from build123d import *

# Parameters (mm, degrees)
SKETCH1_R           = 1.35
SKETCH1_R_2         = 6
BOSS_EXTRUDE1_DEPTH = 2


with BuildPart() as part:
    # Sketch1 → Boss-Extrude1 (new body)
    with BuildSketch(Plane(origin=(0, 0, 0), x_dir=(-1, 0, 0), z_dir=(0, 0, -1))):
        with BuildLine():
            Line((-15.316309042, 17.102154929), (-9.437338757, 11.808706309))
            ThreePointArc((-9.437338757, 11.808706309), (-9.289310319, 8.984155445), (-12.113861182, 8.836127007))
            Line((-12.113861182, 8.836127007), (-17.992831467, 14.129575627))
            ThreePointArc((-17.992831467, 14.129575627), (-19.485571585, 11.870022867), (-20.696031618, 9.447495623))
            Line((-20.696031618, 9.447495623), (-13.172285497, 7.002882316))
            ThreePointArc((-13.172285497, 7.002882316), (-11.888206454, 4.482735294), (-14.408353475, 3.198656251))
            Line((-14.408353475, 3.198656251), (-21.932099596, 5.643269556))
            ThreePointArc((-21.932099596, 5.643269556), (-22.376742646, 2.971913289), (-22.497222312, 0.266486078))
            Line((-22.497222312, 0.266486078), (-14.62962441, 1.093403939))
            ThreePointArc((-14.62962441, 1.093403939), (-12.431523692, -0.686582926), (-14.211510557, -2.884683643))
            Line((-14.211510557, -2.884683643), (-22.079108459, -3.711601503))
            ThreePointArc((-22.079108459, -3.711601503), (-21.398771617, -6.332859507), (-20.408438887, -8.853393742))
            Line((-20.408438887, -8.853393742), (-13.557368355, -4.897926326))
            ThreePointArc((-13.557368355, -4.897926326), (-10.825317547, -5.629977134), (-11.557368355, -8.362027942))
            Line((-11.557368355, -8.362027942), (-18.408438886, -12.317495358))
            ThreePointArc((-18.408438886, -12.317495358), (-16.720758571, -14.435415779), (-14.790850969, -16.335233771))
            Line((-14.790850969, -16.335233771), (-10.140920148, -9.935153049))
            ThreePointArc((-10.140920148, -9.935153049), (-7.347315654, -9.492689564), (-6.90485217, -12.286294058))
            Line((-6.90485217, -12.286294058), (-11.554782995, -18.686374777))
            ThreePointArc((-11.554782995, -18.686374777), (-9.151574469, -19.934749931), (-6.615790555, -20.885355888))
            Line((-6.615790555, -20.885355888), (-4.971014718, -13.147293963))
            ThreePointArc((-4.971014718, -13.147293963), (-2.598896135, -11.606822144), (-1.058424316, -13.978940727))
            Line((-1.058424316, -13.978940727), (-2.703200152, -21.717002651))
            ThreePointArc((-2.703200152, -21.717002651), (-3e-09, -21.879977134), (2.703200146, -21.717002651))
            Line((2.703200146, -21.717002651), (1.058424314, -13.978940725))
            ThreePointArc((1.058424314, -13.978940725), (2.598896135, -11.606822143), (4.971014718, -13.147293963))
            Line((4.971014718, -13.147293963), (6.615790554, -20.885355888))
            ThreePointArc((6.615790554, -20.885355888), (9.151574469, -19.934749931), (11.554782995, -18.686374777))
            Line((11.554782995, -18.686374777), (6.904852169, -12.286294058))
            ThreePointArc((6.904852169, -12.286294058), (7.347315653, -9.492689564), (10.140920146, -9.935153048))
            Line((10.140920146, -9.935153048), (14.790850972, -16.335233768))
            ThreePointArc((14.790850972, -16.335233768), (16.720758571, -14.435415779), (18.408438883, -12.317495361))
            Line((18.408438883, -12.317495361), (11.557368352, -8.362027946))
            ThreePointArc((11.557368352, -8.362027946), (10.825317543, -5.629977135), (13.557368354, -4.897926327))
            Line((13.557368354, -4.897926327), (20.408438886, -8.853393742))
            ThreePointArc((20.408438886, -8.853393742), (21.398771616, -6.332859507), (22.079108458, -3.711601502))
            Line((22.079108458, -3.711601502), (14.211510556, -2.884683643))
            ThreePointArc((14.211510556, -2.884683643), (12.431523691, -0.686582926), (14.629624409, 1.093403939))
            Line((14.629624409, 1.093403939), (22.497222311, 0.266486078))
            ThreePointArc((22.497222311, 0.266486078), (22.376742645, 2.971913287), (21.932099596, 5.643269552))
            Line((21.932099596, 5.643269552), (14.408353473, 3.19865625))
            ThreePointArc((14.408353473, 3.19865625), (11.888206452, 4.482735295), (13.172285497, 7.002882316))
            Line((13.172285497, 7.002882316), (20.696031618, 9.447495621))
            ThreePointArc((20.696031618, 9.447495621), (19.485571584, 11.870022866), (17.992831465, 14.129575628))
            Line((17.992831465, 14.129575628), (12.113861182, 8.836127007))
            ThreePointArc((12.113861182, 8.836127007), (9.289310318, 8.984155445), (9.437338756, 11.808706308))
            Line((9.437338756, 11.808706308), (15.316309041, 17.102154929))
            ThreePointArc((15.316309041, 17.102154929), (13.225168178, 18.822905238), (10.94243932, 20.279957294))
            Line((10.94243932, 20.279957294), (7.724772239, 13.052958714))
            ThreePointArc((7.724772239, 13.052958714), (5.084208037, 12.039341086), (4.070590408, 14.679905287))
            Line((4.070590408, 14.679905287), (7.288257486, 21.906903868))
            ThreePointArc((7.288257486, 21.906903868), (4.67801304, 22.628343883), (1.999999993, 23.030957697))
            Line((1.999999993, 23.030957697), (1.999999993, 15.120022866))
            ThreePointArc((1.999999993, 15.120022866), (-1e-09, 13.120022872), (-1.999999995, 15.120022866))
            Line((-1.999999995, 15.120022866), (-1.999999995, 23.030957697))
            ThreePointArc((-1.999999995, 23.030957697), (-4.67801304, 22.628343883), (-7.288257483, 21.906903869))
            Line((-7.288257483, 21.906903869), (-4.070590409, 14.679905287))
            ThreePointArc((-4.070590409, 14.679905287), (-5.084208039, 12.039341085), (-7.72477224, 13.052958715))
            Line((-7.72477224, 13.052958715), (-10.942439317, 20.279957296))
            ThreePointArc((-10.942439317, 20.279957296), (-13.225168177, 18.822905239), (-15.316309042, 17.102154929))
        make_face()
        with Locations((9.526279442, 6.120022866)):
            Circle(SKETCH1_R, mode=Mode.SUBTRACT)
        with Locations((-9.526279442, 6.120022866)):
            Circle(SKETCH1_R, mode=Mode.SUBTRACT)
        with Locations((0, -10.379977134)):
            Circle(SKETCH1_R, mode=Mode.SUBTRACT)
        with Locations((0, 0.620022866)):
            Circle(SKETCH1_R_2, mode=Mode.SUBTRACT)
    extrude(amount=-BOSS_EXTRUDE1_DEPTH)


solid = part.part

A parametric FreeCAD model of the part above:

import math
import FreeCAD as App
import Part
import Sketcher
Q = App.Units.Quantity

doc = App.newDocument("Part")
body = doc.addObject("PartDesign::Body", "Body")

sketch1 = body.newObject("Sketcher::SketchObject", "Sketch")
sketch1.AttachmentSupport = (doc.getObject("XY_Plane"), [""])
sketch1.MapMode = "FlatFace"
sketch1.addGeometry([
    Part.LineSegment(App.Vector(15.316309, 17.102155, 0), App.Vector(9.437339, 11.808706, 0)),
    Part.ArcOfCircle(Part.Circle(App.Vector(10.7756, 10.322417, 0), App.Vector(0, 0, 1), 2), math.radians(132), math.radians(312)),
    Part.LineSegment(App.Vector(12.113861, 8.836127, 0), App.Vector(17.992831, 14.129576, 0)),
    Part.ArcOfCircle(Part.Circle(App.Vector(0, 0.620023, 0), App.Vector(0, 0, 1), 22.5), math.radians(23.099689), math.radians(36.900311)),
    Part.LineSegment(App.Vector(20.696032, 9.447496, 0), App.Vector(13.172285, 7.002882, 0)),
    Part.ArcOfCircle(Part.Circle(App.Vector(13.790319, 5.100769, 0), App.Vector(0, 0, 1), 2), math.radians(108), math.radians(288)),
    Part.LineSegment(App.Vector(14.408353, 3.198656, 0), App.Vector(21.9321, 5.64327, 0)),
    Part.ArcOfCircle(Part.Circle(App.Vector(0, 0.620023, 0), App.Vector(0, 0, 1), 22.5), math.radians(-0.900311), math.radians(12.900311)),
    Part.LineSegment(App.Vector(22.497222, 0.266486, 0), App.Vector(14.629624, 1.093404, 0)),
    Part.ArcOfCircle(Part.Circle(App.Vector(14.420567, -0.89564, 0), App.Vector(0, 0, 1), 2), math.radians(84), math.radians(264)),
    Part.LineSegment(App.Vector(14.211511, -2.884684, 0), App.Vector(22.079108, -3.711602, 0)),
    Part.ArcOfCircle(Part.Circle(App.Vector(0, 0.620023, 0), App.Vector(0, 0, 1), 22.5), math.radians(-24.900311), math.radians(-11.099689)),
    Part.LineSegment(App.Vector(20.408439, -8.853394, 0), App.Vector(13.557368, -4.897926, 0)),
    Part.ArcOfCircle(Part.Circle(App.Vector(12.557368, -6.629977, 0), App.Vector(0, 0, 1), 2), math.radians(60), math.radians(240)),
    Part.LineSegment(App.Vector(11.557368, -8.362028, 0), App.Vector(18.408439, -12.317495, 0)),
    Part.ArcOfCircle(Part.Circle(App.Vector(0, 0.620023, 0), App.Vector(0, 0, 1), 22.5), math.radians(-48.900311), math.radians(-35.099689)),
    Part.LineSegment(App.Vector(14.790851, -16.335234, 0), App.Vector(10.14092, -9.935153, 0)),
    Part.ArcOfCircle(Part.Circle(App.Vector(8.522886, -11.110724, 0), App.Vector(0, 0, 1), 2), math.radians(36), math.radians(216)),
    Part.LineSegment(App.Vector(6.904852, -12.286294, 0), App.Vector(11.554783, -18.686375, 0)),
    Part.ArcOfCircle(Part.Circle(App.Vector(0, 0.620023, 0), App.Vector(0, 0, 1), 22.5), math.radians(-72.900311), math.radians(-59.099689)),
    Part.LineSegment(App.Vector(6.615791, -20.885356, 0), App.Vector(4.971015, -13.147294, 0)),
    Part.ArcOfCircle(Part.Circle(App.Vector(3.01472, -13.563117, 0), App.Vector(0, 0, 1), 2), math.radians(12), math.radians(192)),
    Part.LineSegment(App.Vector(1.058424, -13.978941, 0), App.Vector(2.7032, -21.717003, 0)),
    Part.ArcOfCircle(Part.Circle(App.Vector(0, 0.620023, 0), App.Vector(0, 0, 1), 22.5), math.radians(-96.900311), math.radians(-83.099689)),
    Part.LineSegment(App.Vector(-2.7032, -21.717003, 0), App.Vector(-1.058424, -13.978941, 0)),
    Part.ArcOfCircle(Part.Circle(App.Vector(-3.01472, -13.563117, 0), App.Vector(0, 0, 1), 2), math.radians(-12), math.radians(168)),
    Part.LineSegment(App.Vector(-4.971015, -13.147294, 0), App.Vector(-6.615791, -20.885356, 0)),
    Part.ArcOfCircle(Part.Circle(App.Vector(0, 0.620023, 0), App.Vector(0, 0, 1), 22.5), math.radians(-120.900311), math.radians(-107.099689)),
    Part.LineSegment(App.Vector(-11.554783, -18.686375, 0), App.Vector(-6.904852, -12.286294, 0)),
    Part.ArcOfCircle(Part.Circle(App.Vector(-8.522886, -11.110724, 0), App.Vector(0, 0, 1), 2), math.radians(-36), math.radians(144)),
    Part.LineSegment(App.Vector(-10.14092, -9.935153, 0), App.Vector(-14.790851, -16.335234, 0)),
    Part.ArcOfCircle(Part.Circle(App.Vector(0, 0.620023, 0), App.Vector(0, 0, 1), 22.5), math.radians(-144.900311), math.radians(-131.099689)),
    Part.LineSegment(App.Vector(-18.408439, -12.317495, 0), App.Vector(-11.557368, -8.362028, 0)),
    Part.ArcOfCircle(Part.Circle(App.Vector(-12.557368, -6.629977, 0), App.Vector(0, 0, 1), 2), math.radians(-60), math.radians(120)),
    Part.LineSegment(App.Vector(-13.557368, -4.897926, 0), App.Vector(-20.408439, -8.853394, 0)),
    Part.ArcOfCircle(Part.Circle(App.Vector(0, 0.620023, 0), App.Vector(0, 0, 1), 22.5), math.radians(-168.900311), math.radians(-155.099689)),
    Part.LineSegment(App.Vector(-22.079108, -3.711602, 0), App.Vector(-14.211511, -2.884684, 0)),
    Part.ArcOfCircle(Part.Circle(App.Vector(-14.420567, -0.89564, 0), App.Vector(0, 0, 1), 2), math.radians(-84), math.radians(96)),
    Part.LineSegment(App.Vector(-14.629624, 1.093404, 0), App.Vector(-22.497222, 0.266486, 0)),
    Part.ArcOfCircle(Part.Circle(App.Vector(0, 0.620023, 0), App.Vector(0, 0, 1), 22.5), math.radians(167.099689), math.radians(180.900311)),
    Part.LineSegment(App.Vector(-21.9321, 5.64327, 0), App.Vector(-14.408353, 3.198656, 0)),
    Part.ArcOfCircle(Part.Circle(App.Vector(-13.790319, 5.100769, 0), App.Vector(0, 0, 1), 2), math.radians(-108), math.radians(72)),
    Part.LineSegment(App.Vector(-13.172285, 7.002882, 0), App.Vector(-20.696032, 9.447496, 0)),
    Part.ArcOfCircle(Part.Circle(App.Vector(0, 0.620023, 0), App.Vector(0, 0, 1), 22.5), math.radians(143.099689), math.radians(156.900311)),
    Part.LineSegment(App.Vector(-17.992831, 14.129576, 0), App.Vector(-12.113861, 8.836127, 0)),
    Part.ArcOfCircle(Part.Circle(App.Vector(-10.7756, 10.322417, 0), App.Vector(0, 0, 1), 2), math.radians(-132), math.radians(48)),
    Part.LineSegment(App.Vector(-9.437339, 11.808706, 0), App.Vector(-15.316309, 17.102155, 0)),
    Part.ArcOfCircle(Part.Circle(App.Vector(0, 0.620023, 0), App.Vector(0, 0, 1), 22.5), math.radians(119.099689), math.radians(132.900311)),
    Part.LineSegment(App.Vector(-10.942439, 20.279957, 0), App.Vector(-7.724772, 13.052959, 0)),
    Part.ArcOfCircle(Part.Circle(App.Vector(-5.897681, 13.866432, 0), App.Vector(0, 0, 1), 2), math.radians(-156), math.radians(24)),
    Part.LineSegment(App.Vector(-4.07059, 14.679905, 0), App.Vector(-7.288257, 21.906904, 0)),
    Part.ArcOfCircle(Part.Circle(App.Vector(0, 0.620023, 0), App.Vector(0, 0, 1), 22.5), math.radians(95.099689), math.radians(108.900311)),
    Part.LineSegment(App.Vector(-2, 23.030958, 0), App.Vector(-2, 15.120023, 0)),
    Part.ArcOfCircle(Part.Circle(App.Vector(0, 15.120023, 0), App.Vector(0, 0, 1), 2), math.radians(180), math.radians(360)),
    Part.LineSegment(App.Vector(2, 15.120023, 0), App.Vector(2, 23.030958, 0)),
    Part.ArcOfCircle(Part.Circle(App.Vector(0, 0.620023, 0), App.Vector(0, 0, 1), 22.5), math.radians(71.099689), math.radians(84.900311)),
    Part.LineSegment(App.Vector(7.288257, 21.906904, 0), App.Vector(4.07059, 14.679905, 0)),
    Part.ArcOfCircle(Part.Circle(App.Vector(5.897681, 13.866432, 0), App.Vector(0, 0, 1), 2), math.radians(156), math.radians(336)),
    Part.LineSegment(App.Vector(7.724772, 13.052959, 0), App.Vector(10.942439, 20.279957, 0)),
    Part.ArcOfCircle(Part.Circle(App.Vector(0, 0.620023, 0), App.Vector(0, 0, 1), 22.5), math.radians(47.099689), math.radians(60.900311)),
    Part.Circle(App.Vector(0, -10.379977, 0), App.Vector(0, 0, 1), 1.35),
    Part.Circle(App.Vector(0, 0.620023, 0), App.Vector(0, 0, 1), 6),
    Part.Circle(App.Vector(9.526279, 6.120023, 0), App.Vector(0, 0, 1), 1.35),
    Part.Circle(App.Vector(-9.526279, 6.120023, 0), App.Vector(0, 0, 1), 1.35),
], False)
sketch1.addConstraint([
    Sketcher.Constraint("Tangent", 0, 2, 1, 1),
    Sketcher.Constraint("Tangent", 1, 2, 2, 1),
    Sketcher.Constraint("Coincident", 2, 2, 3, 2),
    Sketcher.Constraint("Coincident", 3, 1, 4, 1),
    Sketcher.Constraint("Tangent", 4, 2, 5, 1),
    Sketcher.Constraint("Tangent", 5, 2, 6, 1),
    Sketcher.Constraint("Coincident", 6, 2, 7, 2),
    Sketcher.Constraint("Coincident", 7, 1, 8, 1),
    Sketcher.Constraint("Tangent", 8, 2, 9, 1),
    Sketcher.Constraint("Tangent", 9, 2, 10, 1),
    Sketcher.Constraint("Coincident", 10, 2, 11, 2),
    Sketcher.Constraint("Coincident", 11, 1, 12, 1),
    Sketcher.Constraint("Tangent", 12, 2, 13, 1),
    Sketcher.Constraint("Tangent", 13, 2, 14, 1),
    Sketcher.Constraint("Coincident", 14, 2, 15, 2),
    Sketcher.Constraint("Coincident", 15, 1, 16, 1),
    Sketcher.Constraint("Tangent", 16, 2, 17, 1),
    Sketcher.Constraint("Tangent", 17, 2, 18, 1),
    Sketcher.Constraint("Coincident", 18, 2, 19, 2),
    Sketcher.Constraint("Coincident", 19, 1, 20, 1),
    Sketcher.Constraint("Tangent", 20, 2, 21, 1),
    Sketcher.Constraint("Tangent", 21, 2, 22, 1),
    Sketcher.Constraint("Coincident", 22, 2, 23, 2),
    Sketcher.Constraint("Coincident", 23, 1, 24, 1),
    Sketcher.Constraint("Tangent", 24, 2, 25, 1),
    Sketcher.Constraint("Tangent", 25, 2, 26, 1),
    Sketcher.Constraint("Coincident", 26, 2, 27, 2),
    Sketcher.Constraint("Coincident", 27, 1, 28, 1),
    Sketcher.Constraint("Tangent", 28, 2, 29, 1),
    Sketcher.Constraint("Tangent", 29, 2, 30, 1),
    Sketcher.Constraint("Coincident", 30, 2, 31, 2),
    Sketcher.Constraint("Coincident", 31, 1, 32, 1),
    Sketcher.Constraint("Tangent", 32, 2, 33, 1),
    Sketcher.Constraint("Tangent", 33, 2, 34, 1),
    Sketcher.Constraint("Coincident", 34, 2, 35, 2),
    Sketcher.Constraint("Coincident", 35, 1, 36, 1),
    Sketcher.Constraint("Tangent", 36, 2, 37, 1),
    Sketcher.Constraint("Tangent", 37, 2, 38, 1),
    Sketcher.Constraint("Coincident", 38, 2, 39, 2),
    Sketcher.Constraint("Coincident", 39, 1, 40, 1),
    Sketcher.Constraint("Tangent", 40, 2, 41, 1),
    Sketcher.Constraint("Tangent", 41, 2, 42, 1),
    Sketcher.Constraint("Coincident", 42, 2, 43, 2),
    Sketcher.Constraint("Coincident", 43, 1, 44, 1),
    Sketcher.Constraint("Tangent", 44, 2, 45, 1),
    Sketcher.Constraint("Tangent", 45, 2, 46, 1),
    Sketcher.Constraint("Coincident", 46, 2, 47, 2),
    Sketcher.Constraint("Coincident", 47, 1, 48, 1),
    Sketcher.Constraint("Tangent", 48, 2, 49, 1),
    Sketcher.Constraint("Tangent", 49, 2, 50, 1),
    Sketcher.Constraint("Coincident", 50, 2, 51, 2),
    Sketcher.Constraint("Coincident", 51, 1, 52, 1),
    Sketcher.Constraint("Tangent", 52, 2, 53, 1),
    Sketcher.Constraint("Tangent", 53, 2, 54, 1),
    Sketcher.Constraint("Coincident", 54, 2, 55, 2),
    Sketcher.Constraint("Coincident", 55, 1, 56, 1),
    Sketcher.Constraint("Tangent", 56, 2, 57, 1),
    Sketcher.Constraint("Tangent", 57, 2, 58, 1),
    Sketcher.Constraint("Coincident", 58, 2, 59, 2),
    Sketcher.Constraint("Coincident", 59, 1, 0, 1),
    Sketcher.Constraint("Vertical", 52),
    Sketcher.Constraint("Vertical", 54),
    Sketcher.Constraint("Coincident", 7, 3, 3, 3),
    Sketcher.Constraint("Coincident", 11, 3, 3, 3),
    Sketcher.Constraint("Coincident", 15, 3, 3, 3),
    Sketcher.Constraint("Coincident", 19, 3, 3, 3),
    Sketcher.Constraint("Coincident", 23, 3, 3, 3),
    Sketcher.Constraint("Coincident", 27, 3, 3, 3),
    Sketcher.Constraint("Coincident", 31, 3, 3, 3),
    Sketcher.Constraint("Coincident", 35, 3, 3, 3),
    Sketcher.Constraint("Coincident", 39, 3, 3, 3),
    Sketcher.Constraint("Coincident", 43, 3, 3, 3),
    Sketcher.Constraint("Coincident", 47, 3, 3, 3),
    Sketcher.Constraint("Coincident", 51, 3, 3, 3),
    Sketcher.Constraint("Coincident", 55, 3, 3, 3),
    Sketcher.Constraint("Coincident", 59, 3, 3, 3),
    Sketcher.Constraint("Coincident", 61, 3, 3, 3),
    Sketcher.Constraint("Equal", 1, 5),
    Sketcher.Constraint("Equal", 3, 7),
    Sketcher.Constraint("Equal", 5, 9),
    Sketcher.Constraint("Equal", 7, 11),
    Sketcher.Constraint("Equal", 9, 13),
    Sketcher.Constraint("Equal", 11, 15),
    Sketcher.Constraint("Equal", 13, 17),
    Sketcher.Constraint("Equal", 15, 19),
    Sketcher.Constraint("Equal", 17, 21),
    Sketcher.Constraint("Equal", 19, 23),
    Sketcher.Constraint("Equal", 21, 25),
    Sketcher.Constraint("Equal", 23, 27),
    Sketcher.Constraint("Equal", 25, 29),
    Sketcher.Constraint("Equal", 27, 31),
    Sketcher.Constraint("Equal", 29, 33),
    Sketcher.Constraint("Equal", 31, 35),
    Sketcher.Constraint("Equal", 33, 37),
    Sketcher.Constraint("Equal", 35, 39),
    Sketcher.Constraint("Equal", 37, 41),
    Sketcher.Constraint("Equal", 39, 43),
    Sketcher.Constraint("Equal", 41, 45),
    Sketcher.Constraint("Equal", 43, 47),
    Sketcher.Constraint("Equal", 45, 49),
    Sketcher.Constraint("Equal", 47, 51),
    Sketcher.Constraint("Equal", 49, 53),
    Sketcher.Constraint("Equal", 51, 55),
    Sketcher.Constraint("Equal", 53, 57),
    Sketcher.Constraint("Equal", 55, 59),
    Sketcher.Constraint("Equal", 60, 62),
    Sketcher.Constraint("Equal", 62, 63),
    Sketcher.Constraint("Symmetric", 21, 3, 25, 3, -2),
    Sketcher.Constraint("Symmetric", 17, 3, 29, 3, -2),
    Sketcher.Constraint("Symmetric", 13, 3, 33, 3, -2),
    Sketcher.Constraint("Symmetric", 9, 3, 37, 3, -2),
    Sketcher.Constraint("Symmetric", 5, 3, 41, 3, -2),
    Sketcher.Constraint("Symmetric", 1, 3, 45, 3, -2),
    Sketcher.Constraint("Symmetric", 49, 3, 57, 3, -2),
    Sketcher.Constraint("Symmetric", 62, 3, 63, 3, -2),
    Sketcher.Constraint("Symmetric", 22, 2, 23, 1, -2),
    Sketcher.Constraint("PointOnObject", 53, 3, -2),
    Sketcher.Constraint("PointOnObject", 60, 3, -2),
    Sketcher.Constraint("Parallel", 0, 2),
    Sketcher.Constraint("Parallel", 4, 6),
    Sketcher.Constraint("Parallel", 8, 10),
    Sketcher.Constraint("Parallel", 12, 14),
    Sketcher.Constraint("Parallel", 16, 18),
    Sketcher.Constraint("Parallel", 20, 22),
    Sketcher.Constraint("Parallel", 24, 26),
    Sketcher.Constraint("Parallel", 28, 30),
    Sketcher.Constraint("Parallel", 32, 34),
    Sketcher.Constraint("Parallel", 36, 38),
    Sketcher.Constraint("Parallel", 40, 42),
    Sketcher.Constraint("Parallel", 44, 46),
    Sketcher.Constraint("Parallel", 48, 50),
    Sketcher.Constraint("Parallel", 56, 58),
    Sketcher.Constraint("Horizontal", 18, 2, 27, 1),
    Sketcher.Constraint("Horizontal", 14, 2, 31, 1),
    Sketcher.Constraint("Horizontal", 10, 2, 35, 1),
    Sketcher.Constraint("Horizontal", 6, 2, 39, 1),
    Sketcher.Constraint("Horizontal", 2, 2, 43, 1),
    Sketcher.Constraint("Horizontal", 50, 2, 55, 1),
    Sketcher.Constraint("Equal", 0, 2),
    Sketcher.Constraint("Equal", 2, 4),
    Sketcher.Constraint("Equal", 4, 6),
    Sketcher.Constraint("Equal", 6, 8),
    Sketcher.Constraint("Equal", 8, 10),
    Sketcher.Constraint("Equal", 10, 12),
    Sketcher.Constraint("Equal", 12, 14),
    Sketcher.Constraint("Equal", 14, 16),
    Sketcher.Constraint("Equal", 16, 18),
    Sketcher.Constraint("Equal", 18, 20),
    Sketcher.Constraint("Equal", 20, 22),
    Sketcher.Constraint("Equal", 46, 48),
    Sketcher.Constraint("Equal", 48, 50),
    Sketcher.Constraint("Diameter", 61, Q("12 mm")),
    Sketcher.Constraint("Radius", 1, Q("2 mm")),
    Sketcher.Constraint("Diameter", 60, Q("2.7 mm")),
    Sketcher.Constraint("Radius", 3, Q("22.5 mm")),
    Sketcher.Constraint("Angle", 0, Q("-138 deg")),
    Sketcher.Constraint("Angle", 4, Q("-162 deg")),
    Sketcher.Constraint("Angle", 8, Q("174 deg")),
    Sketcher.Constraint("Angle", 12, Q("150 deg")),
    Sketcher.Constraint("Angle", 16, Q("126 deg")),
    Sketcher.Constraint("Angle", 20, Q("102 deg")),
    Sketcher.Constraint("Angle", 48, Q("-66 deg")),
    Sketcher.Constraint("DistanceX", -1, 1, 1, 3, Q("10.7756 mm")),
    Sketcher.Constraint("DistanceY", 10, 2, -1, 1, Q("3.711602 mm")),
    Sketcher.Constraint("DistanceY", 52, 2, 52, 1, Q("7.910935 mm")),
    Sketcher.Constraint("DistanceX", -1, 1, 62, 3, Q("9.526279 mm")),
    Sketcher.Constraint("DistanceY", 60, 3, -1, 1, Q("10.379977 mm")),
    Sketcher.Constraint("DistanceY", -1, 1, 62, 3, Q("6.120023 mm")),
])
pad1 = body.newObject("PartDesign::Pad", "Pad")
pad1.Profile = sketch1
pad1.Length = 2

doc.recompute()
